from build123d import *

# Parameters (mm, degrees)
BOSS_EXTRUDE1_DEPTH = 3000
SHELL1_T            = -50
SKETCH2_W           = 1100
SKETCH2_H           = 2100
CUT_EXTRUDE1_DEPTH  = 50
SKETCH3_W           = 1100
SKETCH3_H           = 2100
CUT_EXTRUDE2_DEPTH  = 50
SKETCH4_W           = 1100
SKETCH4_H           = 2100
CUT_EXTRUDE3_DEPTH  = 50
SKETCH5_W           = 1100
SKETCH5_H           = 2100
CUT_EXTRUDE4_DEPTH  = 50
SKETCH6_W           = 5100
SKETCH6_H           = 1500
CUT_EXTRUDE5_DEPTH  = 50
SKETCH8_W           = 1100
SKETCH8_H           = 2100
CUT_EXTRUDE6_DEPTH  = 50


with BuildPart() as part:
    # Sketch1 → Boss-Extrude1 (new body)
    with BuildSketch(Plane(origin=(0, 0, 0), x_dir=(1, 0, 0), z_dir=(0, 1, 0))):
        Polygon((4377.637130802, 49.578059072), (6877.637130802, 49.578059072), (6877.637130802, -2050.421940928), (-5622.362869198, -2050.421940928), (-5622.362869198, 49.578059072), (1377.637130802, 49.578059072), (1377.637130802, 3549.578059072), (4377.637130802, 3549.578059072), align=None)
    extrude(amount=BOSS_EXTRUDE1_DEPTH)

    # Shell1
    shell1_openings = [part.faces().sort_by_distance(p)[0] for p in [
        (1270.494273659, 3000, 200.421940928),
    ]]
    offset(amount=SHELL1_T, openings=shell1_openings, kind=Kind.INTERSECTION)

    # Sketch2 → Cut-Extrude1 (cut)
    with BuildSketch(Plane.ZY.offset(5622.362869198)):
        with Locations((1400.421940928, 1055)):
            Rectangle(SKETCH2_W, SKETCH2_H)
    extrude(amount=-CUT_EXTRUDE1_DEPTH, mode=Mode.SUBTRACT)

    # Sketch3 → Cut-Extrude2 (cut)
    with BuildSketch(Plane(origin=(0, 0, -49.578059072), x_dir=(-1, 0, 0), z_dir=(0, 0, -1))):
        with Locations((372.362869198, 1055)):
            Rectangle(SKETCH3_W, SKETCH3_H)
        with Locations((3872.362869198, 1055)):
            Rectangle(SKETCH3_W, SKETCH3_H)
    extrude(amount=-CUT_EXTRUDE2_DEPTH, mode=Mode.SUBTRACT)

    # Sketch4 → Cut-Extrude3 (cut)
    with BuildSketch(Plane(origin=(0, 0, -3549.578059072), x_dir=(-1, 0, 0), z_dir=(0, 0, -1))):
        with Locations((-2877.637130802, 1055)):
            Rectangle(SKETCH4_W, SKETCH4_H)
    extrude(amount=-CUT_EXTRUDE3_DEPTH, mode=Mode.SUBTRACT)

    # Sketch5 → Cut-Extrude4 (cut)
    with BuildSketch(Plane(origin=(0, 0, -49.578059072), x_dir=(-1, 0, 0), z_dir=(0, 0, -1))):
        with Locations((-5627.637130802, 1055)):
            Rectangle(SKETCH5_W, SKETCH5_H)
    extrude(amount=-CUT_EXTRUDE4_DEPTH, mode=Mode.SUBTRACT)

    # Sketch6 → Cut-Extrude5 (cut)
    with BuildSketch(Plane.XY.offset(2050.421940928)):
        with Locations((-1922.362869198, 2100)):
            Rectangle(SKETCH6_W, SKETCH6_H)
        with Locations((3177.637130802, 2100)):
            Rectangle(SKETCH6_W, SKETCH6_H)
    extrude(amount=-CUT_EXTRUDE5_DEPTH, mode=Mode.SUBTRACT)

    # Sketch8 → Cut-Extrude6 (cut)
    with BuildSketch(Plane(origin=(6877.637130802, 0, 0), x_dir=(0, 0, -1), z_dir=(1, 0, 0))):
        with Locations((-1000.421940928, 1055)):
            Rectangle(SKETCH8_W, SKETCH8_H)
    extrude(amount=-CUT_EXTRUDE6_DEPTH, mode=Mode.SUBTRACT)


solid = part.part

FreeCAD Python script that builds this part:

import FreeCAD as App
import Part
import Sketcher
from FreeCAD import Vector


def faces_at(feature, points):
    """Names of the faces that lie closest to the given points."""
    faces = feature.Shape.Faces
    near = lambda p: min(range(len(faces)), key=lambda i: faces[i].distToShape(Part.Vertex(*p))[0])
    return sorted({f"Face{near(p) + 1}" for p in points})

doc = App.newDocument("Part")
params = doc.addObject("Spreadsheet::Sheet", "Params")
for row, (alias, value) in enumerate([
    ("sketch1_width", "2500 mm"),
    ("sketch1_width2", "3000 mm"),
    ("sketch1_width3", "7000 mm"),
    ("sketch1_height", "3500 mm"),
    ("sketch1_height2", "2100 mm"),
    ("pad1_length", "3000 mm"),
    ("thickness_wall", "50 mm"),
    ("sketch2_width", "2100 mm"),
    ("sketch2_height", "1100 mm"),
    ("pocket1_length", "50 mm"),
    ("sketch3_width", "1100 mm"),
    ("sketch3_height", "2100 mm"),
    ("pocket2_length", "50 mm"),
    ("sketch4_width", "1100 mm"),
    ("sketch4_height", "2100 mm"),
    ("pocket3_length", "50 mm"),
    ("sketch5_width", "1100 mm"),
    ("sketch5_height", "2100 mm"),
    ("pocket4_length", "50 mm"),
    ("sketch6_width", "10200 mm"),
    ("sketch6_height", "1500 mm"),
    ("pocket5_length", "50 mm"),
    ("sketch7_width", "2100 mm"),
    ("sketch7_height", "1100 mm"),
    ("pocket6_length", "50 mm"),
], start=1):
    params.set(f"A{row}", alias)
    params.set(f"B{row}", "=" + value)
    params.setAlias(f"B{row}", alias)

body = doc.addObject("PartDesign::Body", "Body")

# Sketch on XZ plane
sketch1 = body.newObject("Sketcher::SketchObject", "Sketch")
sketch1.AttachmentSupport = (doc.getObject("XZ_Plane"), [""])
sketch1.MapMode = "FlatFace"
sketch1.addGeometry(Part.LineSegment(Vector(6878, -50, 0), Vector(4378, -50, 0)), False)
sketch1.addGeometry(Part.LineSegment(Vector(4378, -50, 0), Vector(4378, -3550, 0)), False)
sketch1.addGeometry(Part.LineSegment(Vector(4378, -3550, 0), Vector(1378, -3550, 0)), False)
sketch1.addGeometry(Part.LineSegment(Vector(1378, -3550, 0), Vector(1378, -50, 0)), False)
sketch1.addGeometry(Part.LineSegment(Vector(1378, -50, 0), Vector(-5622, -50, 0)), False)
sketch1.addGeometry(Part.LineSegment(Vector(-5622, -50, 0), Vector(-5622, 2050, 0)), False)
sketch1.addGeometry(Part.LineSegment(Vector(-5622, 2050, 0), Vector(6878, 2050, 0)), False)
sketch1.addGeometry(Part.LineSegment(Vector(6878, 2050, 0), Vector(6878, -50, 0)), False)
sketch1.addConstraint(Sketcher.Constraint("Coincident", 0, 2, 1, 1))
sketch1.addConstraint(Sketcher.Constraint("Coincident", 1, 2, 2, 1))
sketch1.addConstraint(Sketcher.Constraint("Coincident", 2, 2, 3, 1))
sketch1.addConstraint(Sketcher.Constraint("Coincident", 3, 2, 4, 1))
sketch1.addConstraint(Sketcher.Constraint("Coincident", 4, 2, 5, 1))
sketch1.addConstraint(Sketcher.Constraint("Coincident", 5, 2, 6, 1))
sketch1.addConstraint(Sketcher.Constraint("Coincident", 6, 2, 7, 1))
sketch1.addConstraint(Sketcher.Constraint("Coincident", 7, 2, 0, 1))
sketch1.addConstraint(Sketcher.Constraint("Horizontal", 0))
sketch1.addConstraint(Sketcher.Constraint("Vertical", 1))
sketch1.addConstraint(Sketcher.Constraint("Horizontal", 2))
sketch1.addConstraint(Sketcher.Constraint("Vertical", 3))
sketch1.addConstraint(Sketcher.Constraint("Horizontal", 4))
sketch1.addConstraint(Sketcher.Constraint("Vertical", 5))
sketch1.addConstraint(Sketcher.Constraint("Horizontal", 6))
sketch1.addConstraint(Sketcher.Constraint("Vertical", 7))
sketch1.addConstraint(Sketcher.Constraint("Horizontal", 0, 2, 3, 2))
sketch1.addConstraint(Sketcher.Constraint("DistanceX", 0, 2, 0, 1, 2500.0))
sketch1.addConstraint(Sketcher.Constraint("DistanceX", 2, 2, 2, 1, 3000.0))
sketch1.addConstraint(Sketcher.Constraint("DistanceX", 4, 2, 4, 1, 7000.0))
sketch1.addConstraint(Sketcher.Constraint("DistanceY", 1, 2, 1, 1, 3500.0))
sketch1.addConstraint(Sketcher.Constraint("DistanceY", 5, 1, 5, 2, 2100.0))
sketch1.addConstraint(Sketcher.Constraint("DistanceX", -1, 1, 0, 2, 4377.637131))
sketch1.addConstraint(Sketcher.Constraint("DistanceY", 0, 2, -1, 1, 49.578059))
sketch1.setExpression("Constraints[17]", "Params.sketch1_width")
sketch1.setExpression("Constraints[18]", "Params.sketch1_width2")
sketch1.setExpression("Constraints[19]", "Params.sketch1_width3")
sketch1.setExpression("Constraints[20]", "Params.sketch1_height")
sketch1.setExpression("Constraints[21]", "Params.sketch1_height2")
pad1 = body.newObject("PartDesign::Pad", "Pad")
pad1.Profile = sketch1
pad1.setExpression("Length", "Params.pad1_length")
pad1.Reversed = True
doc.recompute()

thickness = body.newObject("PartDesign::Thickness", "Thickness")
thickness.Base = (pad1, faces_at(pad1, [(3127.637, 3000, 370.422)]))
thickness.setExpression("Value", "Params.thickness_wall")
thickness.Reversed = True
thickness.Join = "Intersection"

# Sketch on YZ plane
sketch2 = body.newObject("Sketcher::SketchObject", "Sketch001")
sketch2.AttachmentSupport = (doc.getObject("YZ_Plane"), [""])
sketch2.MapMode = "FlatFace"
sketch2.AttachmentOffset = App.Placement(Vector(0, 0, -5622.362869), App.Rotation())
sketch2.addGeometry(Part.LineSegment(Vector(2105, 850, 0), Vector(5, 850, 0)), False)
sketch2.addGeometry(Part.LineSegment(Vector(5, 850, 0), Vector(5, 1950, 0)), False)
sketch2.addGeometry(Part.LineSegment(Vector(5, 1950, 0), Vector(2105, 1950, 0)), False)
sketch2.addGeometry(Part.LineSegment(Vector(2105, 1950, 0), Vector(2105, 850, 0)), False)
sketch2.addConstraint(Sketcher.Constraint("Coincident", 0, 2, 1, 1))
sketch2.addConstraint(Sketcher.Constraint("Coincident", 1, 2, 2, 1))
sketch2.addConstraint(Sketcher.Constraint("Coincident", 2, 2, 3, 1))
sketch2.addConstraint(Sketcher.Constraint("Coincident", 3, 2, 0, 1))
sketch2.addConstraint(Sketcher.Constraint("Horizontal", 0))
sketch2.addConstraint(Sketcher.Constraint("Vertical", 1))
sketch2.addConstraint(Sketcher.Constraint("Horizontal", 2))
sketch2.addConstraint(Sketcher.Constraint("Vertical", 3))
sketch2.addConstraint(Sketcher.Constraint("DistanceX", 0, 2, 0, 1, 2100.0))
sketch2.addConstraint(Sketcher.Constraint("DistanceY", 1, 1, 1, 2, 1100.0))
sketch2.addConstraint(Sketcher.Constraint("DistanceX", -1, 1, 0, 2, 5.0))
sketch2.addConstraint(Sketcher.Constraint("DistanceY", -1, 1, 0, 2, 850.421941))
sketch2.setExpression("Constraints[8]", "Params.sketch2_width")
sketch2.setExpression("Constraints[9]", "Params.sketch2_height")
pocket1 = body.newObject("PartDesign::Pocket", "Pocket")
pocket1.Profile = sketch2
pocket1.setExpression("Length", "Params.pocket1_length")
pocket1.Reversed = True

# Sketch on XY plane
sketch3 = body.newObject("Sketcher::SketchObject", "Sketch002")
sketch3.AttachmentSupport = (doc.getObject("XY_Plane"), [""])
sketch3.MapMode = "FlatFace"
sketch3.AttachmentOffset = App.Placement(Vector(0, 0, -49.578059), App.Rotation())
sketch3.addGeometry(Part.LineSegment(Vector(178, 2105, 0), Vector(178, 5, 0)), False)
sketch3.addGeometry(Part.LineSegment(Vector(178, 5, 0), Vector(-922, 5, 0)), False)
sketch3.addGeometry(Part.LineSegment(Vector(-922, 5, 0), Vector(-922, 2105, 0)), False)
sketch3.addGeometry(Part.LineSegment(Vector(-922, 2105, 0), Vector(178, 2105, 0)), False)
sketch3.addGeometry(Part.LineSegment(Vector(-3322, 2105, 0), Vector(-3322, 5, 0)), False)
sketch3.addGeometry(Part.LineSegment(Vector(-3322, 5, 0), Vector(-4422, 5, 0)), False)
sketch3.addGeometry(Part.LineSegment(Vector(-4422, 5, 0), Vector(-4422, 2105, 0)), False)
sketch3.addGeometry(Part.LineSegment(Vector(-4422, 2105, 0), Vector(-3322, 2105, 0)), False)
sketch3.addConstraint(Sketcher.Constraint("Coincident", 0, 2, 1, 1))
sketch3.addConstraint(Sketcher.Constraint("Coincident", 1, 2, 2, 1))
sketch3.addConstraint(Sketcher.Constraint("Coincident", 2, 2, 3, 1))
sketch3.addConstraint(Sketcher.Constraint("Coincident", 3, 2, 0, 1))
sketch3.addConstraint(Sketcher.Constraint("Coincident", 4, 2, 5, 1))
sketch3.addConstraint(Sketcher.Constraint("Coincident", 5, 2, 6, 1))
sketch3.addConstraint(Sketcher.Constraint("Coincident", 6, 2, 7, 1))
sketch3.addConstraint(Sketcher.Constraint("Coincident", 7, 2, 4, 1))
sketch3.addConstraint(Sketcher.Constraint("Vertical", 0))
sketch3.addConstraint(Sketcher.Constraint("Horizontal", 1))
sketch3.addConstraint(Sketcher.Constraint("Vertical", 2))
sketch3.addConstraint(Sketcher.Constraint("Horizontal", 3))
sketch3.addConstraint(Sketcher.Constraint("Vertical", 4))
sketch3.addConstraint(Sketcher.Constraint("Horizontal", 5))
sketch3.addConstraint(Sketcher.Constraint("Vertical", 6))
sketch3.addConstraint(Sketcher.Constraint("Horizontal", 7))
sketch3.addConstraint(Sketcher.Constraint("Horizontal", 1, 2, 4, 2))
sketch3.addConstraint(Sketcher.Constraint("Horizontal", 3, 2, 6, 2))
sketch3.addConstraint(Sketcher.Constraint("Equal", 3, 5))
sketch3.addConstraint(Sketcher.Constraint("DistanceX", 1, 2, 1, 1, 1100.0))
sketch3.addConstraint(Sketcher.Constraint("DistanceY", 0, 2, 0, 1, 2100.0))
sketch3.addConstraint(Sketcher.Constraint("DistanceY", -1, 1, 0, 2, 5.0))
sketch3.addConstraint(Sketcher.Constraint("DistanceX", 4, 2, 1, 2, 2400.0))
sketch3.addConstraint(Sketcher.Constraint("DistanceX", -1, 1, 0, 2, 177.637131))
sketch3.setExpression("Constraints[19]", "Params.sketch3_width")
sketch3.setExpression("Constraints[20]", "Params.sketch3_height")
pocket2 = body.newObject("PartDesign::Pocket", "Pocket001")
pocket2.Profile = sketch3
pocket2.setExpression("Length", "Params.pocket2_length")
pocket2.Reversed = True

# Sketch on XY plane
sketch4 = body.newObject("Sketcher::SketchObject", "Sketch003")
sketch4.AttachmentSupport = (doc.getObject("XY_Plane"), [""])
sketch4.MapMode = "FlatFace"
sketch4.AttachmentOffset = App.Placement(Vector(0, 0, -3549.578059), App.Rotation())
sketch4.addGeometry(Part.LineSegment(Vector(3428, 2105, 0), Vector(3428, 5, 0)), False)
sketch4.addGeometry(Part.LineSegment(Vector(3428, 5, 0), Vector(2328, 5, 0)), False)
sketch4.addGeometry(Part.LineSegment(Vector(2328, 5, 0), Vector(2328, 2105, 0)), False)
sketch4.addGeometry(Part.LineSegment(Vector(2328, 2105, 0), Vector(3428, 2105, 0)), False)
sketch4.addConstraint(Sketcher.Constraint("Coincident", 0, 2, 1, 1))
sketch4.addConstraint(Sketcher.Constraint("Coincident", 1, 2, 2, 1))
sketch4.addConstraint(Sketcher.Constraint("Coincident", 2, 2, 3, 1))
sketch4.addConstraint(Sketcher.Constraint("Coincident", 3, 2, 0, 1))
sketch4.addConstraint(Sketcher.Constraint("Vertical", 0))
sketch4.addConstraint(Sketcher.Constraint("Horizontal", 1))
sketch4.addConstraint(Sketcher.Constraint("Vertical", 2))
sketch4.addConstraint(Sketcher.Constraint("Horizontal", 3))
sketch4.addConstraint(Sketcher.Constraint("DistanceX", 1, 2, 1, 1, 1100.0))
sketch4.addConstraint(Sketcher.Constraint("DistanceY", 0, 2, 0, 1, 2100.0))
sketch4.addConstraint(Sketcher.Constraint("DistanceY", -1, 1, 0, 2, 5.0))
sketch4.addConstraint(Sketcher.Constraint("DistanceX", -1, 1, 0, 2, 3427.637131))
sketch4.setExpression("Constraints[8]", "Params.sketch4_width")
sketch4.setExpression("Constraints[9]", "Params.sketch4_height")
pocket3 = body.newObject("PartDesign::Pocket", "Pocket002")
pocket3.Profile = sketch4
pocket3.setExpression("Length", "Params.pocket3_length")
pocket3.Reversed = True

# Sketch on XY plane
sketch5 = body.newObject("Sketcher::SketchObject", "Sketch004")
sketch5.AttachmentSupport = (doc.getObject("XY_Plane"), [""])
sketch5.MapMode = "FlatFace"
sketch5.AttachmentOffset = App.Placement(Vector(0, 0, -49.578059), App.Rotation())
sketch5.addGeometry(Part.LineSegment(Vector(6178, 2105, 0), Vector(6178, 5, 0)), False)
sketch5.addGeometry(Part.LineSegment(Vector(6178, 5, 0), Vector(5078, 5, 0)), False)
sketch5.addGeometry(Part.LineSegment(Vector(5078, 5, 0), Vector(5078, 2105, 0)), False)
sketch5.addGeometry(Part.LineSegment(Vector(5078, 2105, 0), Vector(6178, 2105, 0)), False)
sketch5.addConstraint(Sketcher.Constraint("Coincident", 0, 2, 1, 1))
sketch5.addConstraint(Sketcher.Constraint("Coincident", 1, 2, 2, 1))
sketch5.addConstraint(Sketcher.Constraint("Coincident", 2, 2, 3, 1))
sketch5.addConstraint(Sketcher.Constraint("Coincident", 3, 2, 0, 1))
sketch5.addConstraint(Sketcher.Constraint("Vertical", 0))
sketch5.addConstraint(Sketcher.Constraint("Horizontal", 1))
sketch5.addConstraint(Sketcher.Constraint("Vertical", 2))
sketch5.addConstraint(Sketcher.Constraint("Horizontal", 3))
sketch5.addConstraint(Sketcher.Constraint("DistanceX", 1, 2, 1, 1, 1100.0))
sketch5.addConstraint(Sketcher.Constraint("DistanceY", 0, 2, 0, 1, 2100.0))
sketch5.addConstraint(Sketcher.Constraint("DistanceY", -1, 1, 0, 2, 5.0))
sketch5.addConstraint(Sketcher.Constraint("DistanceX", -1, 1, 0, 2, 6177.637131))
sketch5.setExpression("Constraints[8]", "Params.sketch5_width")
sketch5.setExpression("Constraints[9]", "Params.sketch5_height")
pocket4 = body.newObject("PartDesign::Pocket", "Pocket003")
pocket4.Profile = sketch5
pocket4.setExpression("Length", "Params.pocket4_length")
pocket4.Reversed = True

# Sketch on XY plane
sketch6 = body.newObject("Sketcher::SketchObject", "Sketch005")
sketch6.AttachmentSupport = (doc.getObject("XY_Plane"), [""])
sketch6.MapMode = "FlatFace"
sketch6.AttachmentOffset = App.Placement(Vector(0, 0, 2050.421941), App.Rotation())
sketch6.addGeometry(Part.LineSegment(Vector(-4472, 2850, 0), Vector(-4472, 1350, 0)), False)
sketch6.addGeometry(Part.LineSegment(Vector(-4472, 1350, 0), Vector(5728, 1350, 0)), False)
sketch6.addGeometry(Part.LineSegment(Vector(5728, 1350, 0), Vector(5728, 2850, 0)), False)
sketch6.addGeometry(Part.LineSegment(Vector(5728, 2850, 0), Vector(-4472, 2850, 0)), False)
sketch6.addConstraint(Sketcher.Constraint("Coincident", 0, 2, 1, 1))
sketch6.addConstraint(Sketcher.Constraint("Coincident", 1, 2, 2, 1))
sketch6.addConstraint(Sketcher.Constraint("Coincident", 2, 2, 3, 1))
sketch6.addConstraint(Sketcher.Constraint("Coincident", 3, 2, 0, 1))
sketch6.addConstraint(Sketcher.Constraint("Vertical", 0))
sketch6.addConstraint(Sketcher.Constraint("Horizontal", 1))
sketch6.addConstraint(Sketcher.Constraint("Vertical", 2))
sketch6.addConstraint(Sketcher.Constraint("Horizontal", 3))
sketch6.addConstraint(Sketcher.Constraint("DistanceX", 1, 1, 1, 2, 10200.0))
sketch6.addConstraint(Sketcher.Constraint("DistanceY", 0, 2, 0, 1, 1500.0))
sketch6.addConstraint(Sketcher.Constraint("DistanceY", -1, 1, 0, 2, 1350.0))
sketch6.addConstraint(Sketcher.Constraint("DistanceX", 0, 2, -1, 1, 4472.362869))
sketch6.setExpression("Constraints[8]", "Params.sketch6_width")
sketch6.setExpression("Constraints[9]", "Params.sketch6_height")
pocket5 = body.newObject("PartDesign::Pocket", "Pocket004")
pocket5.Profile = sketch6
pocket5.setExpression("Length", "Params.pocket5_length")

# Sketch on YZ plane
sketch7 = body.newObject("Sketcher::SketchObject", "Sketch006")
sketch7.AttachmentSupport = (doc.getObject("YZ_Plane"), [""])
sketch7.MapMode = "FlatFace"
sketch7.AttachmentOffset = App.Placement(Vector(0, 0, 6877.637131), App.Rotation())
sketch7.addGeometry(Part.LineSegment(Vector(2105, 1550, 0), Vector(5, 1550, 0)), False)
sketch7.addGeometry(Part.LineSegment(Vector(5, 1550, 0), Vector(5, 450, 0)), False)
sketch7.addGeometry(Part.LineSegment(Vector(5, 450, 0), Vector(2105, 450, 0)), False)
sketch7.addGeometry(Part.LineSegment(Vector(2105, 450, 0), Vector(2105, 1550, 0)), False)
sketch7.addConstraint(Sketcher.Constraint("Coincident", 0, 2, 1, 1))
sketch7.addConstraint(Sketcher.Constraint("Coincident", 1, 2, 2, 1))
sketch7.addConstraint(Sketcher.Constraint("Coincident", 2, 2, 3, 1))
sketch7.addConstraint(Sketcher.Constraint("Coincident", 3, 2, 0, 1))
sketch7.addConstraint(Sketcher.Constraint("Horizontal", 0))
sketch7.addConstraint(Sketcher.Constraint("Vertical", 1))
sketch7.addConstraint(Sketcher.Constraint("Horizontal", 2))
sketch7.addConstraint(Sketcher.Constraint("Vertical", 3))
sketch7.addConstraint(Sketcher.Constraint("DistanceX", 0, 2, 0, 1, 2100.0))
sketch7.addConstraint(Sketcher.Constraint("DistanceY", 1, 2, 1, 1, 1100.0))
sketch7.addConstraint(Sketcher.Constraint("DistanceX", -1, 1, 0, 2, 5.0))
sketch7.addConstraint(Sketcher.Constraint("DistanceY", -1, 1, 0, 2, 1550.421941))
sketch7.setExpression("Constraints[8]", "Params.sketch7_width")
sketch7.setExpression("Constraints[9]", "Params.sketch7_height")
pocket6 = body.newObject("PartDesign::Pocket", "Pocket005")
pocket6.Profile = sketch7
pocket6.setExpression("Length", "Params.pocket6_length")

doc.recompute()
